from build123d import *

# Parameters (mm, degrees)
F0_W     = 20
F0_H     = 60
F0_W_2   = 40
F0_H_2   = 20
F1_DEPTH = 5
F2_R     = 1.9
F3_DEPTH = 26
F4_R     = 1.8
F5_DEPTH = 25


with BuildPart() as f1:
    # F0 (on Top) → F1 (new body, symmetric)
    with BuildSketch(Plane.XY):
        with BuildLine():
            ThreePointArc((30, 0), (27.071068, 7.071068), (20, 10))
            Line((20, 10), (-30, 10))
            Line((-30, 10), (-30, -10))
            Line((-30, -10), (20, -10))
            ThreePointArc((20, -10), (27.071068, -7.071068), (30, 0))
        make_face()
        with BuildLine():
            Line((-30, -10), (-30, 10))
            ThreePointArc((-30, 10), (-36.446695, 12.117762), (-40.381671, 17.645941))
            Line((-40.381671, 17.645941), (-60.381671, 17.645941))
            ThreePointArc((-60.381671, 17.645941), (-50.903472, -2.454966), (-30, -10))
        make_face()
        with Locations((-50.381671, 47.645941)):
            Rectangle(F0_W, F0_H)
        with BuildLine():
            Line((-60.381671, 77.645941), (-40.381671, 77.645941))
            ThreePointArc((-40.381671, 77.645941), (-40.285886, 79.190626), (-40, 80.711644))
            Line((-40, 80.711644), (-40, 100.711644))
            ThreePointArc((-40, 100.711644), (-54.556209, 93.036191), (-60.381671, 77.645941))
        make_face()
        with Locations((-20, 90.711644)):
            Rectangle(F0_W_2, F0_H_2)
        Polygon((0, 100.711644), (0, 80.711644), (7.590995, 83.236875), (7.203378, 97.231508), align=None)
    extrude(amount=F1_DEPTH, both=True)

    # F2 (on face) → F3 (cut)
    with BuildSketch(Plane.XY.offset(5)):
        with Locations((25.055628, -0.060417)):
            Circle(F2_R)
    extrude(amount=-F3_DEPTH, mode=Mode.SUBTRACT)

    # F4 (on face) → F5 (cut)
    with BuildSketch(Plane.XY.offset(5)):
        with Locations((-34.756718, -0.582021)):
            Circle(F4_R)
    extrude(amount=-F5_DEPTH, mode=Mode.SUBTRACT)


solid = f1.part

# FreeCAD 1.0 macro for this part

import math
import FreeCAD as App
import Part
import Sketcher

doc = App.newDocument("Part")
body = doc.addObject("PartDesign::Body", "Body")

# Sketch on XY plane
sketch1 = doc.addObject("Sketcher::SketchObject", "Sketch")
body.addObject(sketch1)
sketch1.AttachmentSupport = (doc.XY_Plane, [""])
sketch1.MapMode = "FlatFace"
sketch1.addGeometry([
    Part.ArcOfCircle(Part.Circle(App.Vector(20, 0, 0), App.Vector(0, 0, 1), 10), math.radians(0), math.radians(90)),  # 0
    Part.LineSegment(App.Vector(20, 10, 0), App.Vector(-30, 10, 0)),  # 1
    Part.ArcOfCircle(Part.Circle(App.Vector(-30, 20.9, 0), App.Vector(0, 0, 1), 10.9), math.radians(-163), math.radians(-90)),  # 2
    Part.LineSegment(App.Vector(-40.4, 17.6, 0), App.Vector(-40.4, 77.6, 0)),  # 3
    Part.ArcOfCircle(Part.Circle(App.Vector(-27.9, 77.6, 0), App.Vector(0, 0, 1), 12.5), math.radians(165.81), math.radians(180)),  # 4
    Part.LineSegment(App.Vector(-40, 80.7, 0), App.Vector(0, 80.7, 0)),  # 5
    Part.LineSegment(App.Vector(0, 80.7, 0), App.Vector(7.6, 83.2, 0)),  # 6
    Part.LineSegment(App.Vector(7.6, 83.2, 0), App.Vector(7.2, 97.2, 0)),  # 7
    Part.LineSegment(App.Vector(7.2, 97.2, 0), App.Vector(0, 100.7, 0)),  # 8
    Part.LineSegment(App.Vector(0, 100.7, 0), App.Vector(-40, 100.7, 0)),  # 9
    Part.ArcOfCircle(Part.Circle(App.Vector(-37.1, 77.6, 0), App.Vector(0, 0, 1), 23.2), math.radians(97), math.radians(180)),  # 10
    Part.LineSegment(App.Vector(-60.4, 77.6, 0), App.Vector(-60.4, 17.6, 0)),  # 11
    Part.ArcOfCircle(Part.Circle(App.Vector(-31.3, 19.1, 0), App.Vector(0, 0, 1), 29.1), math.radians(-177), math.radians(-87)),  # 12
    Part.LineSegment(App.Vector(-30, -10, 0), App.Vector(20, -10, 0)),  # 13
    Part.ArcOfCircle(Part.Circle(App.Vector(20, 0, 0), App.Vector(0, 0, 1), 10), math.radians(-90), math.radians(0)),  # 14
], False)
sketch1.addConstraint([
    Sketcher.Constraint("Tangent", 0, 2, 1, 1),
    Sketcher.Constraint("Tangent", 1, 2, 2, 2),
    Sketcher.Constraint("Coincident", 2, 1, 3, 1),
    Sketcher.Constraint("Tangent", 3, 2, 4, 2),
    Sketcher.Constraint("Coincident", 4, 1, 5, 1),
    Sketcher.Constraint("Coincident", 5, 2, 6, 1),
    Sketcher.Constraint("Coincident", 6, 2, 7, 1),
    Sketcher.Constraint("Coincident", 7, 2, 8, 1),
    Sketcher.Constraint("Coincident", 8, 2, 9, 1),
    Sketcher.Constraint("Coincident", 9, 2, 10, 1),
    Sketcher.Constraint("Tangent", 10, 2, 11, 1),
    Sketcher.Constraint("Coincident", 11, 2, 12, 1),
    Sketcher.Constraint("Coincident", 12, 2, 13, 1),
    Sketcher.Constraint("Tangent", 13, 2, 14, 1),
    Sketcher.Constraint("Tangent", 14, 2, 0, 1),
    Sketcher.Constraint("Horizontal", 1),
    Sketcher.Constraint("Vertical", 3),
    Sketcher.Constraint("Horizontal", 5),
    Sketcher.Constraint("Horizontal", 9),
    Sketcher.Constraint("Vertical", 11),
    Sketcher.Constraint("Horizontal", 13),
    Sketcher.Constraint("Equal", 0, 14),
    Sketcher.Constraint("Symmetric", 1, 2, 12, 2, -1),
    Sketcher.Constraint("PointOnObject", 5, 2, -2),
    Sketcher.Constraint("PointOnObject", 8, 2, -2),
    Sketcher.Constraint("PointOnObject", 14, 2, -1),
    Sketcher.Constraint("Horizontal", 10, 3, 3, 2),
    Sketcher.Constraint("Horizontal", 2, 1, 11, 2),
    Sketcher.Constraint("Vertical", 4, 1, 9, 2),
    Sketcher.Constraint("Equal", 6, 8),
    Sketcher.Constraint("Radius", 0, 9.999999),
    Sketcher.Constraint("DistanceX", 1, 2, 1, 1, 50.0),
    Sketcher.Constraint("DistanceX", 5, 1, 5, 2, 40.0),
    Sketcher.Constraint("DistanceY", 3, 1, 3, 2, 60.0),
    Sketcher.Constraint("Distance", 6, 8.0),
    Sketcher.Constraint("Distance", 7, 14.0),
    Sketcher.Constraint("DistanceX", -1, 1, 0, 3, 20.000001),
    Sketcher.Constraint("DistanceY", 5, 2, 8, 2, 20.0),
    Sketcher.Constraint("DistanceX", 10, 2, 3, 2, 20.0),
    Sketcher.Constraint("Radius", 10, 23.242431),
    Sketcher.Constraint("Radius", 2, 10.871094),
    Sketcher.Constraint("Radius", 4, 12.503233),
    Sketcher.Constraint("Radius", 12, 29.092883),
    Sketcher.Constraint("DistanceY", -1, 1, 7, 2, 97.231508),
])
pad1 = doc.addObject("PartDesign::Pad", "Pad")
body.addObject(pad1)
pad1.Profile = sketch1
pad1.Length = 10
pad1.Midplane = True

# Sketch on XY plane
sketch2 = doc.addObject("Sketcher::SketchObject", "Sketch001")
body.addObject(sketch2)
sketch2.AttachmentSupport = (doc.XY_Plane, [""])
sketch2.MapMode = "FlatFace"
sketch2.AttachmentOffset = App.Placement(App.Vector(0, 0, 5), App.Rotation())
sketch2.addGeometry(Part.Circle(App.Vector(25.1, -0.1, 0), App.Vector(0, 0, 1), 1.9), False)
sketch2.addConstraint([
    Sketcher.Constraint("Diameter", 0, 3.8),
    Sketcher.Constraint("DistanceX", -1, 1, 0, 3, 25.055628),
    Sketcher.Constraint("DistanceY", 0, 3, -1, 1, 0.060417),
])
pocket1 = doc.addObject("PartDesign::Pocket", "Pocket")
body.addObject(pocket1)
pocket1.Profile = sketch2
pocket1.Length = 26

# Sketch on XY plane
sketch3 = doc.addObject("Sketcher::SketchObject", "Sketch002")
body.addObject(sketch3)
sketch3.AttachmentSupport = (doc.XY_Plane, [""])
sketch3.MapMode = "FlatFace"
sketch3.AttachmentOffset = App.Placement(App.Vector(0, 0, 5), App.Rotation())
sketch3.addGeometry(Part.Circle(App.Vector(-34.8, -0.6, 0), App.Vector(0, 0, 1), 1.8), False)
sketch3.addConstraint([
    Sketcher.Constraint("Diameter", 0, 3.6),
    Sketcher.Constraint("DistanceY", 0, 3, -1, 1, 0.582021),
    Sketcher.Constraint("DistanceX", 0, 3, -1, 1, 34.756718),
])
pocket2 = doc.addObject("PartDesign::Pocket", "Pocket001")
body.addObject(pocket2)
pocket2.Profile = sketch3
pocket2.Length = 25

doc.recompute()
